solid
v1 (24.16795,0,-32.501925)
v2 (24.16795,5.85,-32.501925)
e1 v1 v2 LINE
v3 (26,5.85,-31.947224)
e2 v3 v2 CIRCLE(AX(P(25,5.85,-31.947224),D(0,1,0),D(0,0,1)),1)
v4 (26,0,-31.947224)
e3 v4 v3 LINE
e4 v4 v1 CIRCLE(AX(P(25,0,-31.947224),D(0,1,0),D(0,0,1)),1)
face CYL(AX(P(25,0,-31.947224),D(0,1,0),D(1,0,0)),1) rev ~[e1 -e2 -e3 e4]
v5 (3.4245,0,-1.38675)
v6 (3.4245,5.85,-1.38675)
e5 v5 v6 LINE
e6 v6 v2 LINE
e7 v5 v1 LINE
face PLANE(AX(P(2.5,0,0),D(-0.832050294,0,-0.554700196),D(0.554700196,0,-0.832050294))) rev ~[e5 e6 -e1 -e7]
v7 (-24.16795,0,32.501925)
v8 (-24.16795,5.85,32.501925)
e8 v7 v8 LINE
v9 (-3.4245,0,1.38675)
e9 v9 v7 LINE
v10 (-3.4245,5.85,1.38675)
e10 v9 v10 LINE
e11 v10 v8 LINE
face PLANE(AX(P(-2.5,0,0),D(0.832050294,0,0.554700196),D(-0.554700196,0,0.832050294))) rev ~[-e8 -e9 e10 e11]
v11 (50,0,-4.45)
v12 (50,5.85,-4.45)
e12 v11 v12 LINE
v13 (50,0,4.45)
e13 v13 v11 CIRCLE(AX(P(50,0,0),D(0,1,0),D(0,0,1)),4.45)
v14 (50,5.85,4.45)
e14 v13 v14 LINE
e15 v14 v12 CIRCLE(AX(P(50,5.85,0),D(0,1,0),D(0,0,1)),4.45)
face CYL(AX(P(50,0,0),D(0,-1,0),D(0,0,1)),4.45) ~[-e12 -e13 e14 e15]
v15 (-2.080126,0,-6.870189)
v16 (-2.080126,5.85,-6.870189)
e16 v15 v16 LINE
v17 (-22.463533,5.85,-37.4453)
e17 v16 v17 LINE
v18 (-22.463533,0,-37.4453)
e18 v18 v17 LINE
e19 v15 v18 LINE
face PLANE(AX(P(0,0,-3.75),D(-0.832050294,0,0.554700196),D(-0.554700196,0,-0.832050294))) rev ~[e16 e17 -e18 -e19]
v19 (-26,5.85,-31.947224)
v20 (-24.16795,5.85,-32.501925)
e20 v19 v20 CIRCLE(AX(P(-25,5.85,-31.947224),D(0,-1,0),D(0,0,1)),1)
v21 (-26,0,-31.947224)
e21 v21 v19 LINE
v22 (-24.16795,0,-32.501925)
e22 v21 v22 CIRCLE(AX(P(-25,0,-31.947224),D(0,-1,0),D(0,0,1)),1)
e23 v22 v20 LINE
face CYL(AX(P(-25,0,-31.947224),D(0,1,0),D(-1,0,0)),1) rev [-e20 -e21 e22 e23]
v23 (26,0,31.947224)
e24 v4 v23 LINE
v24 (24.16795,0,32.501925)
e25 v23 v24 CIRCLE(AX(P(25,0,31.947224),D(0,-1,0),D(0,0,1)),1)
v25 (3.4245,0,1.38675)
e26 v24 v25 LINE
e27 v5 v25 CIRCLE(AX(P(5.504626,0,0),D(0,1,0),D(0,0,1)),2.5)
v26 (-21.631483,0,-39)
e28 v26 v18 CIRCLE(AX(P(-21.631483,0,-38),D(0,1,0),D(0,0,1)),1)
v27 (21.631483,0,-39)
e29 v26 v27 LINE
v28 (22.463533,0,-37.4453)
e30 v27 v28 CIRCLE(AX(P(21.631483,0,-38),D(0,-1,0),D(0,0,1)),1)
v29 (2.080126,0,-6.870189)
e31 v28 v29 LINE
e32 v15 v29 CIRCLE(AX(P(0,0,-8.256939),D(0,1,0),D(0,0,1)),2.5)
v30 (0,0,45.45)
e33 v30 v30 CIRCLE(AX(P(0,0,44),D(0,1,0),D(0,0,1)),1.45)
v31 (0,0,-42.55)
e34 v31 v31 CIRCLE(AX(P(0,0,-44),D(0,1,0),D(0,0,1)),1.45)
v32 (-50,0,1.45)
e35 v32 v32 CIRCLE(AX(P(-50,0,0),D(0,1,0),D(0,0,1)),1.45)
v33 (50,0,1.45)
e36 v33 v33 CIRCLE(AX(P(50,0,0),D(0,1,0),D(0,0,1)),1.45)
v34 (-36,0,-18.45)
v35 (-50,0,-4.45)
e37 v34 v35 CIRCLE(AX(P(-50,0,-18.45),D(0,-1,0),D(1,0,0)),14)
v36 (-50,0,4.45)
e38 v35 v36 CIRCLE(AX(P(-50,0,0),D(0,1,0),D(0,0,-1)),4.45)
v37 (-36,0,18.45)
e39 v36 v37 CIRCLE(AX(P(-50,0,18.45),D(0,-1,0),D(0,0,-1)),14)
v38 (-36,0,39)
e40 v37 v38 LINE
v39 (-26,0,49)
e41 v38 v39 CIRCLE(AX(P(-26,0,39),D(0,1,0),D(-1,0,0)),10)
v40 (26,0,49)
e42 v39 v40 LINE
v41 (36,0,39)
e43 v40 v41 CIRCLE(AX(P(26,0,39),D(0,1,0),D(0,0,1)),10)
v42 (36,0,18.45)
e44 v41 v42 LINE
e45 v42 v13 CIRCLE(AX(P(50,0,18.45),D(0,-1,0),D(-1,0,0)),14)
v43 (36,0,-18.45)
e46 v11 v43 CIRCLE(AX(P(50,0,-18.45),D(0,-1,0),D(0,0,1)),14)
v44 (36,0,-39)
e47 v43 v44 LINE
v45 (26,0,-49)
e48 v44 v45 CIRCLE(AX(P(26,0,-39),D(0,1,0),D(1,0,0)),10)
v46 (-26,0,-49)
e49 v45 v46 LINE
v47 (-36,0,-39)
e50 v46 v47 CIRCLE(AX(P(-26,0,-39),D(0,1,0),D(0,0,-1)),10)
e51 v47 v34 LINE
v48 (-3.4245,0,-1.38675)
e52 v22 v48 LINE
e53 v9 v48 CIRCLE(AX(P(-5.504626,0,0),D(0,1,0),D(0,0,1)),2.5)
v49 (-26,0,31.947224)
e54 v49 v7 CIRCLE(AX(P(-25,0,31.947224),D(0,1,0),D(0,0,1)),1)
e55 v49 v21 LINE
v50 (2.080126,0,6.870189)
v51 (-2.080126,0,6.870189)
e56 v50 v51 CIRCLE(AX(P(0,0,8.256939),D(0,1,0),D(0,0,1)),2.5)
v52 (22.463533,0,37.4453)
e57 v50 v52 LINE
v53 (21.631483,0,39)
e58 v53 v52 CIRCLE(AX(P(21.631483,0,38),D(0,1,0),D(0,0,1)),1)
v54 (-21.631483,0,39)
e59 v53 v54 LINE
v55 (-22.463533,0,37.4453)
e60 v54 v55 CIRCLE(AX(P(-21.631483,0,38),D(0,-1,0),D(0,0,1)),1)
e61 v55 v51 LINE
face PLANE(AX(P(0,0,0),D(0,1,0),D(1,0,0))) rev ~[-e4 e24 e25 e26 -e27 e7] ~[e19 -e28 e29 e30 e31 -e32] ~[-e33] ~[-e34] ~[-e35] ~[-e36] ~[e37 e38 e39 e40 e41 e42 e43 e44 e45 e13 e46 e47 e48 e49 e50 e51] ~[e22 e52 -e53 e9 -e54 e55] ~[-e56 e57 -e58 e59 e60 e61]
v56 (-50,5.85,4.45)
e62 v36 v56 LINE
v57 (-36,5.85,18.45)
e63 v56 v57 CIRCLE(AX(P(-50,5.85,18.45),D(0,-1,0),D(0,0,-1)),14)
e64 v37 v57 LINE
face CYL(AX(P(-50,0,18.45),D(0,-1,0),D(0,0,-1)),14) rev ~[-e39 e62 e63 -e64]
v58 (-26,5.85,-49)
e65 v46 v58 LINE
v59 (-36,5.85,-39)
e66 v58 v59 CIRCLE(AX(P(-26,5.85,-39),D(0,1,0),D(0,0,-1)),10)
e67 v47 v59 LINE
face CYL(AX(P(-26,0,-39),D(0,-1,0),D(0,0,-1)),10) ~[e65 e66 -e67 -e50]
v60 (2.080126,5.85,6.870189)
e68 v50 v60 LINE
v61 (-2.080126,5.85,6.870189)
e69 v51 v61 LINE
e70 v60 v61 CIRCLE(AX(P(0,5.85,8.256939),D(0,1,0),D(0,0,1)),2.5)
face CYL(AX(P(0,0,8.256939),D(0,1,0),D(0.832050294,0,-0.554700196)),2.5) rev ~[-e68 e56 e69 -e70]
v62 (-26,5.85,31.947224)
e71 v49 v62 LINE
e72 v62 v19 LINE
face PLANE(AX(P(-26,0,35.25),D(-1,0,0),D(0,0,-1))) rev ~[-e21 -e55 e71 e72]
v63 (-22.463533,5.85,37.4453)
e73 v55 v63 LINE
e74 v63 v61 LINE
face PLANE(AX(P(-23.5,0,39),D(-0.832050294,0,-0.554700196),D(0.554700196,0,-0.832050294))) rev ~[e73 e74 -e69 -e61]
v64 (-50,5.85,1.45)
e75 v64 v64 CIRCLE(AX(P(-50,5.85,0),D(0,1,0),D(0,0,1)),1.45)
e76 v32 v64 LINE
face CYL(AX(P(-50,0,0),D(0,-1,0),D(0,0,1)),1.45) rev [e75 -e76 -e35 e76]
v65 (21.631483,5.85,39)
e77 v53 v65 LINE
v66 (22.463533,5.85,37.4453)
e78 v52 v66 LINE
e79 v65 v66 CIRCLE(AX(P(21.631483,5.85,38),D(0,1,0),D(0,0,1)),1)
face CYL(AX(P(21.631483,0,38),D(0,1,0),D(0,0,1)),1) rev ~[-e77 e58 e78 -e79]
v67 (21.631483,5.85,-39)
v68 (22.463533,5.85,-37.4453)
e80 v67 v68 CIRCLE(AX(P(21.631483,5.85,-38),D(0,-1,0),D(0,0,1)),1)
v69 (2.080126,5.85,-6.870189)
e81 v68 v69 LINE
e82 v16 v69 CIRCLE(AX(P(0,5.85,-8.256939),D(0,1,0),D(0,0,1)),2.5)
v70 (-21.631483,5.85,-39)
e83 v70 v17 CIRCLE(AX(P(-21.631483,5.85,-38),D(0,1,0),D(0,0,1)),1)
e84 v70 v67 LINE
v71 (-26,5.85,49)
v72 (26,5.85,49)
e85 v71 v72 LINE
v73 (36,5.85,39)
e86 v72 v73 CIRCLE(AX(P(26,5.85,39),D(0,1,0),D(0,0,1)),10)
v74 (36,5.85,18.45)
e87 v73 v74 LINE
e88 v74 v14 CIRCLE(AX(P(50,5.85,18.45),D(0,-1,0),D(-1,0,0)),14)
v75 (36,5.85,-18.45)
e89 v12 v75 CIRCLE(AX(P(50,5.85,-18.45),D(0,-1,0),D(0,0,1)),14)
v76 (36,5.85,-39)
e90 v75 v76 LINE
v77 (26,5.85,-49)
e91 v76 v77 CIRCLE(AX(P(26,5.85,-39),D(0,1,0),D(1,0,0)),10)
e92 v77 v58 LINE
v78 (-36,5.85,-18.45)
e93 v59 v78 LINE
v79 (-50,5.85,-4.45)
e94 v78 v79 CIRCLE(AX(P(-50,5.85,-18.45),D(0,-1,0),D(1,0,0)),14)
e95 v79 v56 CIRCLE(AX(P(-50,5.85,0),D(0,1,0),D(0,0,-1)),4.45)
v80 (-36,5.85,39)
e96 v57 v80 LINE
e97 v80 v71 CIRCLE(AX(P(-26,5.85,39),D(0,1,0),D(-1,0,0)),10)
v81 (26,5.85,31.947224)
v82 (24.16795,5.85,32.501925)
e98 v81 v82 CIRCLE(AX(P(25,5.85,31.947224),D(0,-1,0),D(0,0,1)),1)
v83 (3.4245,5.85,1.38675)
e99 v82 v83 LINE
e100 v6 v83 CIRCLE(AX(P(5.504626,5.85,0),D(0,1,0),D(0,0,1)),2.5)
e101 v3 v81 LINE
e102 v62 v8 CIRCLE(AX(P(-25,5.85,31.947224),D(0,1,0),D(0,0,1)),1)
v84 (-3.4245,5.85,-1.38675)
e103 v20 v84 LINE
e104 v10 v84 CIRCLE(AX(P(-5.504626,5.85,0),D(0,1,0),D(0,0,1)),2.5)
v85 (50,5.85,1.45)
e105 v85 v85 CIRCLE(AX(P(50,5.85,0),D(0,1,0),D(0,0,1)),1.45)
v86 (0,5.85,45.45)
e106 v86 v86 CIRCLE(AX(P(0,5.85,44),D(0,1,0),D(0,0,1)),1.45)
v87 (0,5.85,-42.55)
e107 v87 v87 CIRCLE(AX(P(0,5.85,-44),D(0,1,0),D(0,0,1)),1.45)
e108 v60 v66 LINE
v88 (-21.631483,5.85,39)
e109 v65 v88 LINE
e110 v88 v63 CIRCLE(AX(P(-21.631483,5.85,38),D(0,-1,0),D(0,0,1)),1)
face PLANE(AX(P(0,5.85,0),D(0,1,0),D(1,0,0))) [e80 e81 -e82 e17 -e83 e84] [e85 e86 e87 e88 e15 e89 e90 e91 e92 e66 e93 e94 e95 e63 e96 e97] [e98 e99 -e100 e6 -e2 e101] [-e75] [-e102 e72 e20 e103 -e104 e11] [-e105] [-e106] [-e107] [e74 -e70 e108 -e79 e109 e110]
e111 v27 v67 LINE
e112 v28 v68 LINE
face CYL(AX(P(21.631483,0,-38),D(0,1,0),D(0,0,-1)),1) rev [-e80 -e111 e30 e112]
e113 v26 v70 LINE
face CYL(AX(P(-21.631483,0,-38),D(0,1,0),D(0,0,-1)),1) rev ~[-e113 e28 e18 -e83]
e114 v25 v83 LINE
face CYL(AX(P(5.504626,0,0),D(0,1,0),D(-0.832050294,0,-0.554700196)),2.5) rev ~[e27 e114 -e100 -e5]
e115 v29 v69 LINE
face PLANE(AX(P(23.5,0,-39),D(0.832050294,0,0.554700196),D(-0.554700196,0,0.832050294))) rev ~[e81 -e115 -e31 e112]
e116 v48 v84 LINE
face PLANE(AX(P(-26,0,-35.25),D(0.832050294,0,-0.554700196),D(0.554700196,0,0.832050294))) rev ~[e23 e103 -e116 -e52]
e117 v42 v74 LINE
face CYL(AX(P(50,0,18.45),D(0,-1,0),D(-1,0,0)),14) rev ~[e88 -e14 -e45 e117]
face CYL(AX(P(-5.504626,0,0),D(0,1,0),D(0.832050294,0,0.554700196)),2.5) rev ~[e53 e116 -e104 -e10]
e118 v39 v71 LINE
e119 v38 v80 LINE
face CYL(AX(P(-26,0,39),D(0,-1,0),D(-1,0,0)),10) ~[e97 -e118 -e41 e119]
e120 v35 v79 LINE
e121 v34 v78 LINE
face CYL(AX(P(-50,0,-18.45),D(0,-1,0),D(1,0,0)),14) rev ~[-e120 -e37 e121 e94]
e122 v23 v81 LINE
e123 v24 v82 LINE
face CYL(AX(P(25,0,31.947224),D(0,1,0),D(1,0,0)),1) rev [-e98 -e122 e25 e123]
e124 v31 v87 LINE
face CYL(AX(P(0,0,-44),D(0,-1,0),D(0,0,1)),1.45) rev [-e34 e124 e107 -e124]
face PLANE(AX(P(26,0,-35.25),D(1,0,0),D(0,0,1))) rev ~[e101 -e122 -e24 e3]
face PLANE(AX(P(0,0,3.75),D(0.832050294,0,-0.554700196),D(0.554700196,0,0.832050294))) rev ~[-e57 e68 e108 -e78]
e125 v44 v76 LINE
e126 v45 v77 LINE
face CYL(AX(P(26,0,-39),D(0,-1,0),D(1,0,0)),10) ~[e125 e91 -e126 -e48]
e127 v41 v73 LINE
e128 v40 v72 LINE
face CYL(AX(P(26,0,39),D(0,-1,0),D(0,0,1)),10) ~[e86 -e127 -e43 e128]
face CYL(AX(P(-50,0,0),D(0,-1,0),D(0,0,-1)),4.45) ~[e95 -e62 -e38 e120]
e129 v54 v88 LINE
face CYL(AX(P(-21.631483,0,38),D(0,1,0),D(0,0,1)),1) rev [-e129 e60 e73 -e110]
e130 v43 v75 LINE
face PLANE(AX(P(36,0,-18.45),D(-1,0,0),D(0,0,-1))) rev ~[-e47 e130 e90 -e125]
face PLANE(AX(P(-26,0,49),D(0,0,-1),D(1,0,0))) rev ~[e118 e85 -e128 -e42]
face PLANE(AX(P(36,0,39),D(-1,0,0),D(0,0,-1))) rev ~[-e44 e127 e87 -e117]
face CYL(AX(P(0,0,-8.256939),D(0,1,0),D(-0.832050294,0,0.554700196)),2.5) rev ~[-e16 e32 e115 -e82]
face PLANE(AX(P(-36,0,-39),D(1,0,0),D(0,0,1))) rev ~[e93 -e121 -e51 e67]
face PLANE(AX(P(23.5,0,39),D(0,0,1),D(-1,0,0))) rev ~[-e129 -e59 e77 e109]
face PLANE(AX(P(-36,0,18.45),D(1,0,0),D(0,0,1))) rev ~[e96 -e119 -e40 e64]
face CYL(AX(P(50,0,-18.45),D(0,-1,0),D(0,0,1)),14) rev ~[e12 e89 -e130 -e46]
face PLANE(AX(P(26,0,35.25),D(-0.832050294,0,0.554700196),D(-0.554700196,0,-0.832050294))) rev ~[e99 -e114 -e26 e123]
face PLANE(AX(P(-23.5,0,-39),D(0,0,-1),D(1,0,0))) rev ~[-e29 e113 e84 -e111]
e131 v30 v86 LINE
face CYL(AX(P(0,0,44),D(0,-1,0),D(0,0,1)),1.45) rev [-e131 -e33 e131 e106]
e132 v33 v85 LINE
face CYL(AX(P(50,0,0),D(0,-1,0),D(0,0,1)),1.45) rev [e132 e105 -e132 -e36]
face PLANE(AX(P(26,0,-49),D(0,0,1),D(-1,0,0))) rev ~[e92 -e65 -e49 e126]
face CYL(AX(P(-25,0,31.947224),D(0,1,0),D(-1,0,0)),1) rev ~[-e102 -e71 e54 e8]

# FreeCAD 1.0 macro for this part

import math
import FreeCAD as App
import Part
import Sketcher


def edges_at(feature, points):
    """Names of the edges that pass closest to the given points."""
    edges = feature.Shape.Edges
    near = lambda p: min(range(len(edges)), key=lambda i: edges[i].distToShape(Part.Vertex(*p))[0])
    return sorted({f"Edge{near(p) + 1}" for p in points})

doc = App.newDocument("Part")
body = doc.addObject("PartDesign::Body", "Body")

# Sketch on XZ plane
sketch1 = body.newObject("Sketcher::SketchObject", "Sketch")
sketch1.AttachmentSupport = (doc.getObject("XZ_Plane"), [""])
sketch1.MapMode = "FlatFace"
sketch1.addGeometry(Part.ArcOfCircle(Part.Circle(App.Vector(-26, -39, 0), App.Vector(0, 0, 1), 10), math.radians(180), math.radians(270)), False)
sketch1.addGeometry(Part.LineSegment(App.Vector(-36, -39, 0), App.Vector(-36, -18.45, 0)), False)
sketch1.addGeometry(Part.ArcOfCircle(Part.Circle(App.Vector(-50, -18.45, 0), App.Vector(0, 0, 1), 14), math.radians(0), math.radians(90)), False)
sketch1.addGeometry(Part.ArcOfCircle(Part.Circle(App.Vector(-50, 0, 0), App.Vector(0, 0, 1), 4.45), math.radians(90), math.radians(270)), False)
sketch1.addGeometry(Part.ArcOfCircle(Part.Circle(App.Vector(-50, 18.45, 0), App.Vector(0, 0, 1), 14), math.radians(-90), math.radians(0)), False)
sketch1.addGeometry(Part.LineSegment(App.Vector(-36, 18.45, 0), App.Vector(-36, 39, 0)), False)
sketch1.addGeometry(Part.ArcOfCircle(Part.Circle(App.Vector(-26, 39, 0), App.Vector(0, 0, 1), 10), math.radians(90), math.radians(180)), False)
sketch1.addGeometry(Part.LineSegment(App.Vector(-26, 49, 0), App.Vector(26, 49, 0)), False)
sketch1.addGeometry(Part.ArcOfCircle(Part.Circle(App.Vector(26, 39, 0), App.Vector(0, 0, 1), 10), math.radians(0), math.radians(90)), False)
sketch1.addGeometry(Part.LineSegment(App.Vector(36, 39, 0), App.Vector(36, 18.45, 0)), False)
sketch1.addGeometry(Part.ArcOfCircle(Part.Circle(App.Vector(50, 18.45, 0), App.Vector(0, 0, 1), 14), math.radians(180), math.radians(270)), False)
sketch1.addGeometry(Part.ArcOfCircle(Part.Circle(App.Vector(50, 0, 0), App.Vector(0, 0, 1), 4.45), math.radians(-90), math.radians(90)), False)
sketch1.addGeometry(Part.ArcOfCircle(Part.Circle(App.Vector(50, -18.45, 0), App.Vector(0, 0, 1), 14), math.radians(90), math.radians(180)), False)
sketch1.addGeometry(Part.LineSegment(App.Vector(36, -18.45, 0), App.Vector(36, -39, 0)), False)
sketch1.addGeometry(Part.ArcOfCircle(Part.Circle(App.Vector(26, -39, 0), App.Vector(0, 0, 1), 10), math.radians(-90), math.radians(0)), False)
sketch1.addGeometry(Part.LineSegment(App.Vector(26, -49, 0), App.Vector(-26, -49, 0)), False)
sketch1.addGeometry(Part.Circle(App.Vector(0, 44, 0), App.Vector(0, 0, 1), 1.45), False)
sketch1.addGeometry(Part.LineSegment(App.Vector(23.5, 39, 0), App.Vector(-23.5, 39, 0)), False)
sketch1.addGeometry(Part.LineSegment(App.Vector(-23.5, 39, 0), App.Vector(0, 3.75, 0)), False)
sketch1.addGeometry(Part.LineSegment(App.Vector(0, 3.75, 0), App.Vector(23.5, 39, 0)), False)
sketch1.addGeometry(Part.Circle(App.Vector(-50, 0, 0), App.Vector(0, 0, 1), 1.45), False)
sketch1.addGeometry(Part.LineSegment(App.Vector(-26, 35.25, 0), App.Vector(-26, -35.25, 0)), False)
sketch1.addGeometry(Part.LineSegment(App.Vector(-26, -35.25, 0), App.Vector(-2.5, 0, 0)), False)
sketch1.addGeometry(Part.LineSegment(App.Vector(-2.5, 0, 0), App.Vector(-26, 35.25, 0)), False)
sketch1.addGeometry(Part.LineSegment(App.Vector(26, -35.25, 0), App.Vector(26, 35.25, 0)), False)
sketch1.addGeometry(Part.LineSegment(App.Vector(26, 35.25, 0), App.Vector(2.5, 0, 0)), False)
sketch1.addGeometry(Part.LineSegment(App.Vector(2.5, 0, 0), App.Vector(26, -35.25, 0)), False)
sketch1.addGeometry(Part.LineSegment(App.Vector(-23.5, -39, 0), App.Vector(23.5, -39, 0)), False)
sketch1.addGeometry(Part.LineSegment(App.Vector(23.5, -39, 0), App.Vector(0, -3.75, 0)), False)
sketch1.addGeometry(Part.LineSegment(App.Vector(0, -3.75, 0), App.Vector(-23.5, -39, 0)), False)
sketch1.addGeometry(Part.Circle(App.Vector(50, 0, 0), App.Vector(0, 0, 1), 1.45), False)
sketch1.addGeometry(Part.Circle(App.Vector(0, -44, 0), App.Vector(0, 0, 1), 1.45), False)
sketch1.addConstraint(Sketcher.Constraint("Tangent", 0, 1, 1, 1))
sketch1.addConstraint(Sketcher.Constraint("Tangent", 1, 2, 2, 1))
sketch1.addConstraint(Sketcher.Constraint("Tangent", 2, 2, 3, 2))
sketch1.addConstraint(Sketcher.Constraint("Tangent", 3, 1, 4, 1))
sketch1.addConstraint(Sketcher.Constraint("Tangent", 4, 2, 5, 1))
sketch1.addConstraint(Sketcher.Constraint("Tangent", 5, 2, 6, 2))
sketch1.addConstraint(Sketcher.Constraint("Tangent", 6, 1, 7, 1))
sketch1.addConstraint(Sketcher.Constraint("Tangent", 7, 2, 8, 2))
sketch1.addConstraint(Sketcher.Constraint("Tangent", 8, 1, 9, 1))
sketch1.addConstraint(Sketcher.Constraint("Tangent", 9, 2, 10, 1))
sketch1.addConstraint(Sketcher.Constraint("Tangent", 10, 2, 11, 2))
sketch1.addConstraint(Sketcher.Constraint("Tangent", 11, 1, 12, 1))
sketch1.addConstraint(Sketcher.Constraint("Tangent", 12, 2, 13, 1))
sketch1.addConstraint(Sketcher.Constraint("Tangent", 13, 2, 14, 2))
sketch1.addConstraint(Sketcher.Constraint("Tangent", 14, 1, 15, 1))
sketch1.addConstraint(Sketcher.Constraint("Tangent", 15, 2, 0, 2))
sketch1.addConstraint(Sketcher.Constraint("Coincident", 17, 2, 18, 1))
sketch1.addConstraint(Sketcher.Constraint("Coincident", 18, 2, 19, 1))
sketch1.addConstraint(Sketcher.Constraint("Coincident", 19, 2, 17, 1))
sketch1.addConstraint(Sketcher.Constraint("Coincident", 21, 2, 22, 1))
sketch1.addConstraint(Sketcher.Constraint("Coincident", 22, 2, 23, 1))
sketch1.addConstraint(Sketcher.Constraint("Coincident", 23, 2, 21, 1))
sketch1.addConstraint(Sketcher.Constraint("Coincident", 24, 2, 25, 1))
sketch1.addConstraint(Sketcher.Constraint("Coincident", 25, 2, 26, 1))
sketch1.addConstraint(Sketcher.Constraint("Coincident", 26, 2, 24, 1))
sketch1.addConstraint(Sketcher.Constraint("Coincident", 27, 2, 28, 1))
sketch1.addConstraint(Sketcher.Constraint("Coincident", 28, 2, 29, 1))
sketch1.addConstraint(Sketcher.Constraint("Coincident", 29, 2, 27, 1))
sketch1.addConstraint(Sketcher.Constraint("Vertical", 1))
sketch1.addConstraint(Sketcher.Constraint("Vertical", 5))
sketch1.addConstraint(Sketcher.Constraint("Horizontal", 7))
sketch1.addConstraint(Sketcher.Constraint("Vertical", 9))
sketch1.addConstraint(Sketcher.Constraint("Vertical", 13))
sketch1.addConstraint(Sketcher.Constraint("Horizontal", 15))
sketch1.addConstraint(Sketcher.Constraint("Horizontal", 17))
sketch1.addConstraint(Sketcher.Constraint("Vertical", 21))
sketch1.addConstraint(Sketcher.Constraint("Vertical", 24))
sketch1.addConstraint(Sketcher.Constraint("Horizontal", 27))
sketch1.addConstraint(Sketcher.Constraint("Coincident", 20, 3, 3, 3))
sketch1.addConstraint(Sketcher.Constraint("Coincident", 30, 3, 11, 3))
sketch1.addConstraint(Sketcher.Constraint("Equal", 2, 4))
sketch1.addConstraint(Sketcher.Constraint("Equal", 0, 6))
sketch1.addConstraint(Sketcher.Constraint("Equal", 6, 8))
sketch1.addConstraint(Sketcher.Constraint("Equal", 4, 10))
sketch1.addConstraint(Sketcher.Constraint("Equal", 3, 11))
sketch1.addConstraint(Sketcher.Constraint("Equal", 10, 12))
sketch1.addConstraint(Sketcher.Constraint("Equal", 8, 14))
sketch1.addConstraint(Sketcher.Constraint("Equal", 16, 20))
sketch1.addConstraint(Sketcher.Constraint("Equal", 20, 30))
sketch1.addConstraint(Sketcher.Constraint("Equal", 30, 31))
sketch1.addConstraint(Sketcher.Constraint("Symmetric", 0, 3, 8, 3, -1, 1))
sketch1.addConstraint(Sketcher.Constraint("Symmetric", 3, 3, 11, 3, -1, 1))
sketch1.addConstraint(Sketcher.Constraint("Symmetric", 16, 3, 31, 3, -1, 1))
sketch1.addConstraint(Sketcher.Constraint("Symmetric", 21, 2, 24, 2, -1, 1))
sketch1.addConstraint(Sketcher.Constraint("Symmetric", 22, 2, 25, 2, -1, 1))
sketch1.addConstraint(Sketcher.Constraint("Symmetric", 17, 2, 27, 2, -1, 1))
sketch1.addConstraint(Sketcher.Constraint("Symmetric", 18, 2, 28, 2, -1, 1))
sketch1.addConstraint(Sketcher.Constraint("Symmetric", 4, 3, 10, 3, -2))
sketch1.addConstraint(Sketcher.Constraint("PointOnObject", 16, 3, -2))
sketch1.addConstraint(Sketcher.Constraint("PointOnObject", 18, 2, -2))
sketch1.addConstraint(Sketcher.Constraint("PointOnObject", 22, 2, -1))
sketch1.addConstraint(Sketcher.Constraint("Parallel", 19, 22))
sketch1.addConstraint(Sketcher.Constraint("Parallel", 18, 23))
sketch1.addConstraint(Sketcher.Constraint("Parallel", 23, 26))
sketch1.addConstraint(Sketcher.Constraint("Parallel", 25, 29))
sketch1.addConstraint(Sketcher.Constraint("Horizontal", 8, 1, 17, 2))
sketch1.addConstraint(Sketcher.Constraint("Horizontal", 23, 2, 24, 2))
sketch1.addConstraint(Sketcher.Constraint("Vertical", 2, 3, 3, 3))
sketch1.addConstraint(Sketcher.Constraint("Vertical", 11, 3, 12, 3))
sketch1.addConstraint(Sketcher.Constraint("Vertical", 15, 2, 21, 2))
sketch1.addConstraint(Sketcher.Constraint("Equal", 19, 22))
sketch1.addConstraint(Sketcher.Constraint("Radius", 0, 10.0))
sketch1.addConstraint(Sketcher.Constraint("Radius", 2, 14.0))
sketch1.addConstraint(Sketcher.Constraint("Diameter", 16, 2.9))
sketch1.addConstraint(Sketcher.Constraint("DistanceX", 7, 1, 7, 2, 52.0))
sketch1.addConstraint(Sketcher.Constraint("DistanceX", 17, 2, 17, 1, 47.0))
sketch1.addConstraint(Sketcher.Constraint("Radius", 3, 4.45))
sketch1.addConstraint(Sketcher.Constraint("DistanceY", 21, 2, 21, 1, 70.5))
sketch1.addConstraint(Sketcher.Constraint("DistanceY", 0, 3, -1, 1, 39.0))
sketch1.addConstraint(Sketcher.Constraint("DistanceY", -1, 1, 16, 3, 44.0))
pad1 = body.newObject("PartDesign::Pad", "Pad")
pad1.Profile = sketch1
pad1.Length = 5.85
pad1.Reversed = True
doc.recompute()

fillet = body.newObject("PartDesign::Fillet", "Fillet")
fillet.Base = (pad1, edges_at(pad1, [
    (-23.5, 2.925, 39),
    (23.5, 2.925, 39),
    (23.5, 2.925, -39),
    (-23.5, 2.925, -39),
    (26, 2.925, 35.25),
    (26, 2.925, -35.25),
    (-26, 2.925, -35.25),
    (-26, 2.925, 35.25),
]))
fillet.Radius = 1
doc.recompute()

fillet2 = body.newObject("PartDesign::Fillet", "Fillet001")
fillet2.Base = (fillet, edges_at(fillet, [
    (0, 2.925, 3.75),
    (0, 2.925, -3.75),
    (2.5, 2.925, 0),
    (-2.5, 2.925, 0),
]))
fillet2.Radius = 2.5

doc.recompute()
